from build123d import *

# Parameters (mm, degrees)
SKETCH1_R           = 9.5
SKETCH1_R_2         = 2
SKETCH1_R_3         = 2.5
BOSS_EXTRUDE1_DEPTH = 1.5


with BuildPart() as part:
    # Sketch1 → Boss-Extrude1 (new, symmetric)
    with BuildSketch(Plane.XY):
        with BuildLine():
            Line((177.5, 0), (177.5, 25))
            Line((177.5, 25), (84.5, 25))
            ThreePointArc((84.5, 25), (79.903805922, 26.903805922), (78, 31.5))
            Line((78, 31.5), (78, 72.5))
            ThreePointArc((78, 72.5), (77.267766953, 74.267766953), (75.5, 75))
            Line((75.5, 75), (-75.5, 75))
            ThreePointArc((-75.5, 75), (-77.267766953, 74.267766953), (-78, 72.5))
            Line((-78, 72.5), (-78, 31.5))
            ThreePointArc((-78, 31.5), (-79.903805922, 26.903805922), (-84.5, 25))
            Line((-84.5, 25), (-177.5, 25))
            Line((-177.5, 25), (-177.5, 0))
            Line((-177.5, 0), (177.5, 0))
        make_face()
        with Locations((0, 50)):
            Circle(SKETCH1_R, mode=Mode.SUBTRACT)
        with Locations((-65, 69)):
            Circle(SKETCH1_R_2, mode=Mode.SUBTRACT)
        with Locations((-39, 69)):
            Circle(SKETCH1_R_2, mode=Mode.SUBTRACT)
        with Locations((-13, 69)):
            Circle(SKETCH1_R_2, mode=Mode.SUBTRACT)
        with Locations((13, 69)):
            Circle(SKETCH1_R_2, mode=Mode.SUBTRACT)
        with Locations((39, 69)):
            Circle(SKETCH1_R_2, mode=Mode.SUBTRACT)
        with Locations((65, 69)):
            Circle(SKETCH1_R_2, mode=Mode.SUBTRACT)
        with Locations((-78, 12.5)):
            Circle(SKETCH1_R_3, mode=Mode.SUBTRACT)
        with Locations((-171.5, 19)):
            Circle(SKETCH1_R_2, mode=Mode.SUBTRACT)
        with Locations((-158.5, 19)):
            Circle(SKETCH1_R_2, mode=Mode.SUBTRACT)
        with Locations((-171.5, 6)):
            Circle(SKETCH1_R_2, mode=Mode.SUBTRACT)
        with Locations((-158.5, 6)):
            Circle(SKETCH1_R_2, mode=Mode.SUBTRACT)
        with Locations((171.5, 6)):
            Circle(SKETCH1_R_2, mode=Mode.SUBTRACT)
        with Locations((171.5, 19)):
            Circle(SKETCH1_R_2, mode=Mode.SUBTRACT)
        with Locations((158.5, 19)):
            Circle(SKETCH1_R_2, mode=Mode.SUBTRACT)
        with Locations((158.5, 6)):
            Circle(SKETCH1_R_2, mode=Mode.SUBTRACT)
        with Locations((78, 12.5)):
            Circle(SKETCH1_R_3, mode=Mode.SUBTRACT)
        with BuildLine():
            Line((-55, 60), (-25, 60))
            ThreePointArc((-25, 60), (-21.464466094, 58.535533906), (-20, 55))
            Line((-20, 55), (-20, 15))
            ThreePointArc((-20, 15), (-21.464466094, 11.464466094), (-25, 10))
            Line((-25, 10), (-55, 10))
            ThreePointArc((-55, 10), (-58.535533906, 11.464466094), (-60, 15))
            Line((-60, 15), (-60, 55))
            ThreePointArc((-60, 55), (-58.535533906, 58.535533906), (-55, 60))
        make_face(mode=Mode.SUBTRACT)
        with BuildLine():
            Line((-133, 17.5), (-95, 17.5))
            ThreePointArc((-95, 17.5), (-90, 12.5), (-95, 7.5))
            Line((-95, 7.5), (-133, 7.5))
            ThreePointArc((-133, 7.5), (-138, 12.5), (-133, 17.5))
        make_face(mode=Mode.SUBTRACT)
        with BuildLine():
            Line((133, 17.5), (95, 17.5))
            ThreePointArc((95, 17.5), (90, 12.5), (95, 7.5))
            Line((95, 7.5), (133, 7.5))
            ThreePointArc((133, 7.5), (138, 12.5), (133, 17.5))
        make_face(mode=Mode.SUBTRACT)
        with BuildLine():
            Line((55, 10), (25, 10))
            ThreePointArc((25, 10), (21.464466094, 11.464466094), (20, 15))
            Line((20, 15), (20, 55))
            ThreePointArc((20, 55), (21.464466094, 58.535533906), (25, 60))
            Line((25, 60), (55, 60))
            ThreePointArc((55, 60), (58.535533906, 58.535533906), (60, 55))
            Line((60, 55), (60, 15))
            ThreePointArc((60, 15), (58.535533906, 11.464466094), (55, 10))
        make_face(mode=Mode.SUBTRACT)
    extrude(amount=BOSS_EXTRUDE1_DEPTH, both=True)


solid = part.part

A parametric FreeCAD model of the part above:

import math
import FreeCAD as App
import Part
import Sketcher

V = App.Vector

doc = App.newDocument("Part")
body = doc.addObject("PartDesign::Body", "Body")

sketch1 = body.newObject("Sketcher::SketchObject", "Sketch")
sketch1.AttachmentSupport = (doc.getObject("XY_Plane"), [""])
sketch1.MapMode = "FlatFace"
sketch1.addGeometry([
    Part.LineSegment(V(177.5, 0, 0), V(177.5, 25, 0)),
    Part.LineSegment(V(177.5, 25, 0), V(84.5, 25, 0)),
    Part.ArcOfCircle(Part.Circle(V(84.5, 31.5, 0), V(0, 0, 1), 6.5), math.radians(180), math.radians(270)),
    Part.LineSegment(V(78, 31.5, 0), V(78, 72.5, 0)),
    Part.ArcOfCircle(Part.Circle(V(75.5, 72.5, 0), V(0, 0, 1), 2.5), math.radians(0), math.radians(90)),
    Part.LineSegment(V(75.5, 75, 0), V(-75.5, 75, 0)),
    Part.ArcOfCircle(Part.Circle(V(-75.5, 72.5, 0), V(0, 0, 1), 2.5), math.radians(90), math.radians(180)),
    Part.LineSegment(V(-78, 72.5, 0), V(-78, 31.5, 0)),
    Part.ArcOfCircle(Part.Circle(V(-84.5, 31.5, 0), V(0, 0, 1), 6.5), math.radians(-90), math.radians(0)),
    Part.LineSegment(V(-84.5, 25, 0), V(-177.5, 25, 0)),
    Part.LineSegment(V(-177.5, 25, 0), V(-177.5, 0, 0)),
    Part.LineSegment(V(-177.5, 0, 0), V(177.5, 0, 0)),
    Part.Circle(V(-171.5, 6, 0), V(0, 0, 1), 2),
    Part.Circle(V(-158.5, 6, 0), V(0, 0, 1), 2),
    Part.Circle(V(-171.5, 19, 0), V(0, 0, 1), 2),
    Part.Circle(V(-158.5, 19, 0), V(0, 0, 1), 2),
    Part.ArcOfCircle(Part.Circle(V(-133, 12.5, 0), V(0, 0, 1), 5), math.radians(90), math.radians(270)),
    Part.LineSegment(V(-133, 17.5, 0), V(-95, 17.5, 0)),
    Part.ArcOfCircle(Part.Circle(V(-95, 12.5, 0), V(0, 0, 1), 5), math.radians(-90), math.radians(90)),
    Part.LineSegment(V(-95, 7.5, 0), V(-133, 7.5, 0)),
    Part.Circle(V(-78, 12.5, 0), V(0, 0, 1), 2.5),
    Part.ArcOfCircle(Part.Circle(V(-55, 55, 0), V(0, 0, 1), 5), math.radians(90), math.radians(180)),
    Part.LineSegment(V(-55, 60, 0), V(-25, 60, 0)),
    Part.ArcOfCircle(Part.Circle(V(-25, 55, 0), V(0, 0, 1), 5), math.radians(0), math.radians(90)),
    Part.LineSegment(V(-20, 55, 0), V(-20, 15, 0)),
    Part.ArcOfCircle(Part.Circle(V(-25, 15, 0), V(0, 0, 1), 5), math.radians(-90), math.radians(0)),
    Part.LineSegment(V(-25, 10, 0), V(-55, 10, 0)),
    Part.ArcOfCircle(Part.Circle(V(-55, 15, 0), V(0, 0, 1), 5), math.radians(180), math.radians(270)),
    Part.LineSegment(V(-60, 15, 0), V(-60, 55, 0)),
    Part.Circle(V(78, 12.5, 0), V(0, 0, 1), 2.5),
    Part.Circle(V(158.5, 6, 0), V(0, 0, 1), 2),
    Part.Circle(V(171.5, 6, 0), V(0, 0, 1), 2),
    Part.LineSegment(V(95, 17.5, 0), V(133, 17.5, 0)),
    Part.ArcOfCircle(Part.Circle(V(133, 12.5, 0), V(0, 0, 1), 5), math.radians(-90), math.radians(90)),
    Part.LineSegment(V(133, 7.5, 0), V(95, 7.5, 0)),
    Part.ArcOfCircle(Part.Circle(V(95, 12.5, 0), V(0, 0, 1), 5), math.radians(90), math.radians(270)),
    Part.Circle(V(158.5, 19, 0), V(0, 0, 1), 2),
    Part.Circle(V(171.5, 19, 0), V(0, 0, 1), 2),
    Part.ArcOfCircle(Part.Circle(V(55, 15, 0), V(0, 0, 1), 5), math.radians(-90), math.radians(0)),
    Part.LineSegment(V(55, 10, 0), V(25, 10, 0)),
    Part.ArcOfCircle(Part.Circle(V(25, 15, 0), V(0, 0, 1), 5), math.radians(180), math.radians(270)),
    Part.LineSegment(V(20, 15, 0), V(20, 55, 0)),
    Part.ArcOfCircle(Part.Circle(V(25, 55, 0), V(0, 0, 1), 5), math.radians(90), math.radians(180)),
    Part.LineSegment(V(25, 60, 0), V(55, 60, 0)),
    Part.ArcOfCircle(Part.Circle(V(55, 55, 0), V(0, 0, 1), 5), math.radians(0), math.radians(90)),
    Part.LineSegment(V(60, 55, 0), V(60, 15, 0)),
    Part.Circle(V(0, 50, 0), V(0, 0, 1), 9.5),
    Part.Circle(V(-65, 69, 0), V(0, 0, 1), 2),
    Part.Circle(V(-39, 69, 0), V(0, 0, 1), 2),
    Part.Circle(V(-13, 69, 0), V(0, 0, 1), 2),
    Part.Circle(V(13, 69, 0), V(0, 0, 1), 2),
    Part.Circle(V(39, 69, 0), V(0, 0, 1), 2),
    Part.Circle(V(65, 69, 0), V(0, 0, 1), 2),
], False)
sketch1.addConstraint([
    Sketcher.Constraint("Coincident", 0, 2, 1, 1),
    Sketcher.Constraint("Tangent", 1, 2, 2, 2),
    Sketcher.Constraint("Tangent", 2, 1, 3, 1),
    Sketcher.Constraint("Tangent", 3, 2, 4, 1),
    Sketcher.Constraint("Tangent", 4, 2, 5, 1),
    Sketcher.Constraint("Tangent", 5, 2, 6, 1),
    Sketcher.Constraint("Tangent", 6, 2, 7, 1),
    Sketcher.Constraint("Tangent", 7, 2, 8, 2),
    Sketcher.Constraint("Tangent", 8, 1, 9, 1),
    Sketcher.Constraint("Coincident", 9, 2, 10, 1),
    Sketcher.Constraint("Coincident", 10, 2, 11, 1),
    Sketcher.Constraint("Coincident", 11, 2, 0, 1),
    Sketcher.Constraint("Tangent", 16, 1, 17, 1),
    Sketcher.Constraint("Tangent", 17, 2, 18, 2),
    Sketcher.Constraint("Tangent", 18, 1, 19, 1),
    Sketcher.Constraint("Tangent", 19, 2, 16, 2),
    Sketcher.Constraint("Tangent", 21, 1, 22, 1),
    Sketcher.Constraint("Tangent", 22, 2, 23, 2),
    Sketcher.Constraint("Tangent", 23, 1, 24, 1),
    Sketcher.Constraint("Tangent", 24, 2, 25, 2),
    Sketcher.Constraint("Tangent", 25, 1, 26, 1),
    Sketcher.Constraint("Tangent", 26, 2, 27, 2),
    Sketcher.Constraint("Tangent", 27, 1, 28, 1),
    Sketcher.Constraint("Tangent", 28, 2, 21, 2),
    Sketcher.Constraint("Tangent", 32, 2, 33, 2),
    Sketcher.Constraint("Tangent", 33, 1, 34, 1),
    Sketcher.Constraint("Tangent", 34, 2, 35, 2),
    Sketcher.Constraint("Tangent", 35, 1, 32, 1),
    Sketcher.Constraint("Tangent", 38, 1, 39, 1),
    Sketcher.Constraint("Tangent", 39, 2, 40, 2),
    Sketcher.Constraint("Tangent", 40, 1, 41, 1),
    Sketcher.Constraint("Tangent", 41, 2, 42, 2),
    Sketcher.Constraint("Tangent", 42, 1, 43, 1),
    Sketcher.Constraint("Tangent", 43, 2, 44, 2),
    Sketcher.Constraint("Tangent", 44, 1, 45, 1),
    Sketcher.Constraint("Tangent", 45, 2, 38, 2),
    Sketcher.Constraint("Vertical", 0),
    Sketcher.Constraint("Horizontal", 1),
    Sketcher.Constraint("Vertical", 3),
    Sketcher.Constraint("Horizontal", 5),
    Sketcher.Constraint("Vertical", 7),
    Sketcher.Constraint("Horizontal", 9),
    Sketcher.Constraint("Vertical", 10),
    Sketcher.Constraint("Horizontal", 11),
    Sketcher.Constraint("Horizontal", 17),
    Sketcher.Constraint("Horizontal", 19),
    Sketcher.Constraint("Horizontal", 22),
    Sketcher.Constraint("Vertical", 24),
    Sketcher.Constraint("Horizontal", 26),
    Sketcher.Constraint("Vertical", 28),
    Sketcher.Constraint("Horizontal", 32),
    Sketcher.Constraint("Horizontal", 34),
    Sketcher.Constraint("Horizontal", 39),
    Sketcher.Constraint("Vertical", 41),
    Sketcher.Constraint("Horizontal", 43),
    Sketcher.Constraint("Vertical", 45),
    Sketcher.Constraint("Equal", 4, 6),
    Sketcher.Constraint("Equal", 2, 8),
    Sketcher.Constraint("Equal", 12, 13),
    Sketcher.Constraint("Equal", 13, 14),
    Sketcher.Constraint("Equal", 14, 15),
    Sketcher.Constraint("Equal", 6, 20),
    Sketcher.Constraint("Equal", 18, 21),
    Sketcher.Constraint("Equal", 21, 23),
    Sketcher.Constraint("Equal", 23, 25),
    Sketcher.Constraint("Equal", 25, 27),
    Sketcher.Constraint("Equal", 20, 29),
    Sketcher.Constraint("Equal", 15, 30),
    Sketcher.Constraint("Equal", 30, 31),
    Sketcher.Constraint("Equal", 27, 33),
    Sketcher.Constraint("Equal", 31, 36),
    Sketcher.Constraint("Equal", 36, 37),
    Sketcher.Constraint("Equal", 35, 38),
    Sketcher.Constraint("Equal", 38, 40),
    Sketcher.Constraint("Equal", 40, 42),
    Sketcher.Constraint("Equal", 42, 44),
    Sketcher.Constraint("Equal", 37, 47),
    Sketcher.Constraint("Equal", 47, 48),
    Sketcher.Constraint("Equal", 48, 49),
    Sketcher.Constraint("Equal", 49, 50),
    Sketcher.Constraint("Equal", 50, 51),
    Sketcher.Constraint("Equal", 51, 52),
    Sketcher.Constraint("Symmetric", 10, 2, 11, 2, -1, 1),
    Sketcher.Constraint("Symmetric", 2, 3, 8, 3, -2),
    Sketcher.Constraint("Symmetric", 20, 3, 29, 3, -2),
    Sketcher.Constraint("Symmetric", 13, 3, 30, 3, -2),
    Sketcher.Constraint("Symmetric", 12, 3, 31, 3, -2),
    Sketcher.Constraint("Symmetric", 16, 3, 33, 3, -2),
    Sketcher.Constraint("Symmetric", 15, 3, 36, 3, -2),
    Sketcher.Constraint("Symmetric", 14, 3, 37, 3, -2),
    Sketcher.Constraint("Symmetric", 27, 3, 38, 3, -2),
    Sketcher.Constraint("Symmetric", 23, 3, 42, 3, -2),
    Sketcher.Constraint("Symmetric", 49, 3, 50, 3, -2),
    Sketcher.Constraint("Symmetric", 48, 3, 51, 3, -2),
    Sketcher.Constraint("Symmetric", 47, 3, 52, 3, -2),
    Sketcher.Constraint("PointOnObject", 46, 3, -2),
    Sketcher.Constraint("Horizontal", 12, 3, 13, 3),
    Sketcher.Constraint("Horizontal", 14, 3, 15, 3),
    Sketcher.Constraint("Horizontal", 18, 3, 20, 3),
    Sketcher.Constraint("Horizontal", 47, 3, 48, 3),
    Sketcher.Constraint("Horizontal", 48, 3, 49, 3),
    Sketcher.Constraint("Vertical", 12, 3, 14, 3),
    Sketcher.Constraint("Vertical", 13, 3, 15, 3),
    Sketcher.Constraint("Vertical", 29, 3, 2, 1),
    Sketcher.Constraint("Equal", 19, 32),
    Sketcher.Constraint("Diameter", 12, 4.0),
    Sketcher.Constraint("Diameter", 20, 5.0),
    Sketcher.Constraint("Diameter", 46, 19.0),
    Sketcher.Constraint("Radius", 16, 5.0),
    Sketcher.Constraint("Radius", 2, 6.5),
    Sketcher.Constraint("DistanceX", 1, 2, 1, 1, 93.0),
    Sketcher.Constraint("DistanceX", 5, 2, 5, 1, 151.0),
    Sketcher.Constraint("DistanceX", 17, 1, 17, 2, 38.0),
    Sketcher.Constraint("DistanceX", 22, 1, 22, 2, 30.0),
    Sketcher.Constraint("DistanceY", 0, 1, 0, 2, 25.0),
    Sketcher.Constraint("DistanceY", 3, 1, 3, 2, 41.0),
    Sketcher.Constraint("DistanceY", 24, 2, 24, 1, 40.0),
    Sketcher.Constraint("DistanceY", -1, 1, 12, 3, 6.0),
    Sketcher.Constraint("DistanceY", -1, 1, 14, 3, 19.0),
    Sketcher.Constraint("DistanceX", 16, 3, -1, 1, 133.0),
    Sketcher.Constraint("DistanceX", 21, 3, -1, 1, 55.0),
    Sketcher.Constraint("DistanceY", -1, 1, 21, 3, 55.0),
    Sketcher.Constraint("DistanceY", -1, 1, 46, 3, 50.0),
    Sketcher.Constraint("DistanceX", 47, 3, -1, 1, 65.0),
    Sketcher.Constraint("DistanceY", -1, 1, 47, 3, 69.0),
    Sketcher.Constraint("DistanceX", 48, 3, -1, 1, 39.0),
    Sketcher.Constraint("DistanceX", 49, 3, -1, 1, 13.0),
    Sketcher.Constraint("DistanceX", 12, 3, -1, 1, 171.5),
    Sketcher.Constraint("DistanceX", 13, 3, -1, 1, 158.5),
    Sketcher.Constraint("DistanceY", -1, 1, 16, 3, 12.5),
])
pad1 = body.newObject("PartDesign::Pad", "Pad")
pad1.Profile = sketch1
pad1.Length = 3
pad1.Midplane = True

doc.recompute()
